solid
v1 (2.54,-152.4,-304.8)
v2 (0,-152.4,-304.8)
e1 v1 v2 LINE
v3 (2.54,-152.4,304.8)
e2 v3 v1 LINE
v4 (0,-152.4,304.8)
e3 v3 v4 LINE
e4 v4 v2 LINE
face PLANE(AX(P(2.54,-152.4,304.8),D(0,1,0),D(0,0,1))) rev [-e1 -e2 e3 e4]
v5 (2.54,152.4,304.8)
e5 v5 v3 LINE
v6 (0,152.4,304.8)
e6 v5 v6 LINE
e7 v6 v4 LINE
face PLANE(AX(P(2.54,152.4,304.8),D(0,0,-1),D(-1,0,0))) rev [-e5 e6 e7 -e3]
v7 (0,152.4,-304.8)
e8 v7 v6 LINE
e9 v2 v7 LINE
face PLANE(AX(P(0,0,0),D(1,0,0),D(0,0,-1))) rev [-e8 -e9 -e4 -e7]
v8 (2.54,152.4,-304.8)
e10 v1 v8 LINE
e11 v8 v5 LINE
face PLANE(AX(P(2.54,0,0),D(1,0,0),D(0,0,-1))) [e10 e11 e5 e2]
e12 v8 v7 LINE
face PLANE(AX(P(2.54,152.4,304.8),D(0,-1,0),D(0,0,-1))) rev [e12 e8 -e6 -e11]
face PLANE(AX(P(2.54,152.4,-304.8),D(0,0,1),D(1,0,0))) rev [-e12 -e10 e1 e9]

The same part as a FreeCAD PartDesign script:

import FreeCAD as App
import Part
import Sketcher

V = App.Vector
Q = App.Units.Quantity


def add_polygon(sketch, points):
    """Adds a closed chain of lines whose ends are joined by coincident constraints."""
    first, n = sketch.GeometryCount, len(points)
    for a, b in zip(points, points[1:] + points[:1]):
        sketch.addGeometry(Part.LineSegment(App.Vector(*a, 0), App.Vector(*b, 0)), False)
    for i in range(n):
        sketch.addConstraint(Sketcher.Constraint("Coincident", first + i, 2, first + (i + 1) % n, 1))

doc = App.newDocument("Part")
body = doc.addObject("PartDesign::Body", "Body")

sketch1 = body.newObject("Sketcher::SketchObject", "Sketch")
sketch1.AttachmentSupport = (doc.getObject("YZ_Plane"), [""])
sketch1.MapMode = "FlatFace"
add_polygon(sketch1, [(152, 305), (-152, 305), (-152, -305), (152, -305)])
sketch1.addConstraint([
    Sketcher.Constraint("Horizontal", 0),
    Sketcher.Constraint("Vertical", 1),
    Sketcher.Constraint("Horizontal", 2),
    Sketcher.Constraint("Vertical", 3),
    Sketcher.Constraint("Symmetric", 0, 2, 2, 2, -1, 1),
    Sketcher.Constraint("DistanceX", 0, 2, 0, 1, Q("12 in")),
    Sketcher.Constraint("DistanceY", 1, 2, 1, 1, Q("24 in")),
])
pad1 = body.newObject("PartDesign::Pad", "Pad")
pad1.Profile = sketch1
pad1.Length = Q("0.1 in")

doc.recompute()
